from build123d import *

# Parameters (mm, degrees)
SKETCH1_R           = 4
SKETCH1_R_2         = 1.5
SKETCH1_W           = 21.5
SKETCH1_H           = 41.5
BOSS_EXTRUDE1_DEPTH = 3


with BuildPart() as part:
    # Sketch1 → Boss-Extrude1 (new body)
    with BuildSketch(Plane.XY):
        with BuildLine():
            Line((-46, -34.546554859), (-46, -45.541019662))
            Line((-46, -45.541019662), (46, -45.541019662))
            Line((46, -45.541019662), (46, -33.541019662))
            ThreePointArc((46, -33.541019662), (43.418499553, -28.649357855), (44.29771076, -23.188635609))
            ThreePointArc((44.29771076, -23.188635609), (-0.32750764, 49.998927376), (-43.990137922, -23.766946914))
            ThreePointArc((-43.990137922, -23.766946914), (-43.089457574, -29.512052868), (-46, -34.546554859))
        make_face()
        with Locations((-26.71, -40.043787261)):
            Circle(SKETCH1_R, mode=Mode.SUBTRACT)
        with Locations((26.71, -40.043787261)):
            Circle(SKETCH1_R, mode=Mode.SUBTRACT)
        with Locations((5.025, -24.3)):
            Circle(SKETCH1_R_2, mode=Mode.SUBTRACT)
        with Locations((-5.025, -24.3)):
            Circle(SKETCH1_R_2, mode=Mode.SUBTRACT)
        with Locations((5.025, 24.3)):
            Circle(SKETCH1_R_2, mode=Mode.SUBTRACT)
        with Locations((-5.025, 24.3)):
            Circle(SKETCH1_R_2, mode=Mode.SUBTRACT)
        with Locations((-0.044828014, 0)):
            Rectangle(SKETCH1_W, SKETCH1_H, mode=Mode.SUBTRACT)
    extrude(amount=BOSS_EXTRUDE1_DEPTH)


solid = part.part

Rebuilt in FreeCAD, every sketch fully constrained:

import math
import FreeCAD as App
import Part
import Sketcher
Q = App.Units.Quantity

doc = App.newDocument("Part")
body = doc.addObject("PartDesign::Body", "Body")

sketch1 = body.newObject("Sketcher::SketchObject", "Sketch")
sketch1.AttachmentSupport = (doc.getObject("XY_Plane"), [""])
sketch1.MapMode = "FlatFace"
sketch1.addGeometry(Part.LineSegment(App.Vector(-46, -34.5, 0), App.Vector(-46, -45.5, 0)), False)
sketch1.addGeometry(Part.LineSegment(App.Vector(-46, -45.5, 0), App.Vector(46, -45.5, 0)), False)
sketch1.addGeometry(Part.LineSegment(App.Vector(46, -45.5, 0), App.Vector(46, -33.5, 0)), False)
sketch1.addGeometry(Part.ArcOfCircle(Part.Circle(App.Vector(52, -27.2, 0), App.Vector(0, 0, 1), 8.7), math.radians(152), math.radians(226)), False)
sketch1.addGeometry(Part.ArcOfCircle(Part.Circle(App.Vector(0, 0, 0), App.Vector(0, 0, 1), 50), math.radians(-28), math.radians(208)), False)
sketch1.addGeometry(Part.ArcOfCircle(Part.Circle(App.Vector(-51.7, -27.9, 0), App.Vector(0, 0, 1), 8.7), math.radians(-50), math.radians(28)), False)
sketch1.addGeometry(Part.Circle(App.Vector(-26.7, -40, 0), App.Vector(0, 0, 1), 4), False)
sketch1.addGeometry(Part.Circle(App.Vector(-5, -24.3, 0), App.Vector(0, 0, 1), 1.5), False)
sketch1.addGeometry(Part.Circle(App.Vector(26.7, -40, 0), App.Vector(0, 0, 1), 4), False)
sketch1.addGeometry(Part.Circle(App.Vector(5, -24.3, 0), App.Vector(0, 0, 1), 1.5), False)
sketch1.addGeometry(Part.LineSegment(App.Vector(10.7, -20.8, 0), App.Vector(-10.8, -20.8, 0)), False)
sketch1.addGeometry(Part.LineSegment(App.Vector(-10.8, -20.8, 0), App.Vector(-10.8, 20.8, 0)), False)
sketch1.addGeometry(Part.LineSegment(App.Vector(-10.8, 20.8, 0), App.Vector(10.7, 20.8, 0)), False)
sketch1.addGeometry(Part.LineSegment(App.Vector(10.7, 20.8, 0), App.Vector(10.7, -20.8, 0)), False)
sketch1.addGeometry(Part.Circle(App.Vector(-5, 24.3, 0), App.Vector(0, 0, 1), 1.5), False)
sketch1.addGeometry(Part.Circle(App.Vector(5, 24.3, 0), App.Vector(0, 0, 1), 1.5), False)
sketch1.addConstraint(Sketcher.Constraint("Coincident", 0, 2, 1, 1))
sketch1.addConstraint(Sketcher.Constraint("Coincident", 1, 2, 2, 1))
sketch1.addConstraint(Sketcher.Constraint("Coincident", 2, 2, 3, 2))
sketch1.addConstraint(Sketcher.Constraint("Tangent", 3, 1, 4, 1))
sketch1.addConstraint(Sketcher.Constraint("Tangent", 4, 2, 5, 2))
sketch1.addConstraint(Sketcher.Constraint("Coincident", 5, 1, 0, 1))
sketch1.addConstraint(Sketcher.Constraint("Coincident", 10, 2, 11, 1))
sketch1.addConstraint(Sketcher.Constraint("Coincident", 11, 2, 12, 1))
sketch1.addConstraint(Sketcher.Constraint("Coincident", 12, 2, 13, 1))
sketch1.addConstraint(Sketcher.Constraint("Coincident", 13, 2, 10, 1))
sketch1.addConstraint(Sketcher.Constraint("Vertical", 0))
sketch1.addConstraint(Sketcher.Constraint("Horizontal", 1))
sketch1.addConstraint(Sketcher.Constraint("Vertical", 2))
sketch1.addConstraint(Sketcher.Constraint("Horizontal", 10))
sketch1.addConstraint(Sketcher.Constraint("Vertical", 11))
sketch1.addConstraint(Sketcher.Constraint("Horizontal", 12))
sketch1.addConstraint(Sketcher.Constraint("Vertical", 13))
sketch1.addConstraint(Sketcher.Constraint("Coincident", 4, 3, -1, 1))
sketch1.addConstraint(Sketcher.Constraint("Equal", 3, 5))
sketch1.addConstraint(Sketcher.Constraint("Equal", 6, 8))
sketch1.addConstraint(Sketcher.Constraint("Equal", 7, 9))
sketch1.addConstraint(Sketcher.Constraint("Equal", 9, 14))
sketch1.addConstraint(Sketcher.Constraint("Equal", 14, 15))
sketch1.addConstraint(Sketcher.Constraint("Symmetric", 9, 3, 14, 3, -1, 1))
sketch1.addConstraint(Sketcher.Constraint("Symmetric", 7, 3, 15, 3, -1, 1))
sketch1.addConstraint(Sketcher.Constraint("Symmetric", 6, 3, 8, 3, -2))
sketch1.addConstraint(Sketcher.Constraint("Symmetric", 7, 3, 9, 3, -2))
sketch1.addConstraint(Sketcher.Constraint("Diameter", 6, Q("8 mm")))
sketch1.addConstraint(Sketcher.Constraint("Diameter", 7, Q("3 mm")))
sketch1.addConstraint(Sketcher.Constraint("Radius", 4, Q("50 mm")))
sketch1.addConstraint(Sketcher.Constraint("DistanceX", 1, 1, 1, 2, Q("92 mm")))
sketch1.addConstraint(Sketcher.Constraint("DistanceY", 2, 1, 2, 2, Q("12 mm")))
sketch1.addConstraint(Sketcher.Constraint("DistanceX", 10, 2, 10, 1, Q("21.5 mm")))
sketch1.addConstraint(Sketcher.Constraint("DistanceY", 11, 1, 11, 2, Q("41.5 mm")))
sketch1.addConstraint(Sketcher.Constraint("DistanceX", 0, 2, -1, 1, Q("46 mm")))
sketch1.addConstraint(Sketcher.Constraint("DistanceY", 7, 3, -1, 1, Q("24.3 mm")))
sketch1.addConstraint(Sketcher.Constraint("DistanceX", 6, 3, -1, 1, Q("26.71 mm")))
sketch1.addConstraint(Sketcher.Constraint("DistanceY", 10, 2, -1, 1, Q("20.75 mm")))
sketch1.addConstraint(Sketcher.Constraint("DistanceX", 7, 3, 9, 3, Q("10.05 mm")))
sketch1.addConstraint(Sketcher.Constraint("Radius", 3, Q("8.722805 mm")))
sketch1.addConstraint(Sketcher.Constraint("DistanceX", 5, 3, 3, 3, Q("103.690202 mm")))
sketch1.addConstraint(Sketcher.Constraint("DistanceY", 5, 3, 3, 3, Q("0.679201 mm")))
sketch1.addConstraint(Sketcher.Constraint("DistanceX", 10, 2, -1, 1, Q("10.794828 mm")))
sketch1.addConstraint(Sketcher.Constraint("DistanceY", 6, 3, 5, 3, Q("12.130552 mm")))
pad1 = body.newObject("PartDesign::Pad", "Pad")
pad1.Profile = sketch1
pad1.Length = 3

doc.recompute()
